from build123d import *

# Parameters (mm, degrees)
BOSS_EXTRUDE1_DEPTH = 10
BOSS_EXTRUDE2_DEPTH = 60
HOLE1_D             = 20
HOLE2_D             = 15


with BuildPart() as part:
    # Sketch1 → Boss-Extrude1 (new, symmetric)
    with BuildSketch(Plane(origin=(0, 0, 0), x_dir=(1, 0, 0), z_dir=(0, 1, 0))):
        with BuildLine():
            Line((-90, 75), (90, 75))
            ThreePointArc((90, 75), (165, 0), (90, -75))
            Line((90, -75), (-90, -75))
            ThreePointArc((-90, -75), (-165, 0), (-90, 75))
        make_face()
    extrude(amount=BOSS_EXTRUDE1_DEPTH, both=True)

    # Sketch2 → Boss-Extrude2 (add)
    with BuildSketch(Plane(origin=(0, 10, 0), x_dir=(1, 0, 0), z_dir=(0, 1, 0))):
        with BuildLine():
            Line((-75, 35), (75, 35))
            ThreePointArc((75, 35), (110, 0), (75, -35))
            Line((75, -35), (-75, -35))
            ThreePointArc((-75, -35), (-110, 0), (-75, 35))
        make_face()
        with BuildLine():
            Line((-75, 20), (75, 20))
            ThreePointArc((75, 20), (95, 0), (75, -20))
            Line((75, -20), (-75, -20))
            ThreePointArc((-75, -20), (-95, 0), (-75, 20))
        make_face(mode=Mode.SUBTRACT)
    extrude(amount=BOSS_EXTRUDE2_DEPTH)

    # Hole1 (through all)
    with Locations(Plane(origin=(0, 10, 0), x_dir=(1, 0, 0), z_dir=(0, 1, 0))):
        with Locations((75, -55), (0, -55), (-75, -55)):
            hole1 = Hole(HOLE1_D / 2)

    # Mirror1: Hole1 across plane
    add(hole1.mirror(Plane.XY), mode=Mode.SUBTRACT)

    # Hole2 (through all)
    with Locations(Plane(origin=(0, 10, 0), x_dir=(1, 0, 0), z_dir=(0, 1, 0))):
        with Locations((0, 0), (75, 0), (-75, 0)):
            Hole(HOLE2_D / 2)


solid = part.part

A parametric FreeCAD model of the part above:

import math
import FreeCAD as App
import Part
import Sketcher
Q = App.Units.Quantity

doc = App.newDocument("Part")
body = doc.addObject("PartDesign::Body", "Body")

# Sketch on XZ plane
sketch1 = body.newObject("Sketcher::SketchObject", "Sketch")
sketch1.AttachmentSupport = (doc.getObject("XZ_Plane"), [""])
sketch1.MapMode = "FlatFace"
sketch1.addGeometry([
    Part.LineSegment(App.Vector(90, -75, 0), App.Vector(-90, -75, 0)),
    Part.ArcOfCircle(Part.Circle(App.Vector(-90, 0, 0), App.Vector(0, 0, 1), 75), math.radians(90), math.radians(270)),
    Part.LineSegment(App.Vector(-90, 75, 0), App.Vector(90, 75, 0)),
    Part.ArcOfCircle(Part.Circle(App.Vector(90, 0, 0), App.Vector(0, 0, 1), 75), math.radians(-90), math.radians(90)),
], False)
sketch1.addConstraint([
    Sketcher.Constraint("Tangent", 0, 2, 1, 2),
    Sketcher.Constraint("Tangent", 1, 1, 2, 1),
    Sketcher.Constraint("Tangent", 2, 2, 3, 2),
    Sketcher.Constraint("Tangent", 3, 1, 0, 1),
    Sketcher.Constraint("Horizontal", 0),
    Sketcher.Constraint("Horizontal", 2),
    Sketcher.Constraint("Symmetric", 1, 3, 3, 3, -1, 1),
    Sketcher.Constraint("Radius", 1, Q("75 mm")),
    Sketcher.Constraint("DistanceX", 0, 2, 0, 1, Q("180 mm")),
])
pad1 = body.newObject("PartDesign::Pad", "Pad")
pad1.Profile = sketch1
pad1.Length = 20
pad1.Midplane = True

# Sketch on XZ plane
sketch2 = body.newObject("Sketcher::SketchObject", "Sketch001")
sketch2.AttachmentSupport = (doc.getObject("XZ_Plane"), [""])
sketch2.MapMode = "FlatFace"
sketch2.AttachmentOffset = App.Placement(App.Vector(0, 0, -10), App.Rotation())
sketch2.addGeometry([
    Part.LineSegment(App.Vector(75, -35, 0), App.Vector(-75, -35, 0)),  # 0
    Part.ArcOfCircle(Part.Circle(App.Vector(-75, 0, 0), App.Vector(0, 0, 1), 35), math.radians(90), math.radians(270)),  # 1
    Part.LineSegment(App.Vector(-75, 35, 0), App.Vector(75, 35, 0)),  # 2
    Part.ArcOfCircle(Part.Circle(App.Vector(75, 0, 0), App.Vector(0, 0, 1), 35), math.radians(-90), math.radians(90)),  # 3
    Part.LineSegment(App.Vector(-75, -20, 0), App.Vector(75, -20, 0)),  # 4
    Part.ArcOfCircle(Part.Circle(App.Vector(75, 0, 0), App.Vector(0, 0, 1), 20), math.radians(-90), math.radians(90)),  # 5
    Part.LineSegment(App.Vector(75, 20, 0), App.Vector(-75, 20, 0)),  # 6
    Part.ArcOfCircle(Part.Circle(App.Vector(-75, 0, 0), App.Vector(0, 0, 1), 20), math.radians(90), math.radians(270)),  # 7
], False)
sketch2.addConstraint([
    Sketcher.Constraint("Tangent", 0, 2, 1, 2),
    Sketcher.Constraint("Tangent", 1, 1, 2, 1),
    Sketcher.Constraint("Tangent", 2, 2, 3, 2),
    Sketcher.Constraint("Tangent", 3, 1, 0, 1),
    Sketcher.Constraint("Tangent", 4, 2, 5, 1),
    Sketcher.Constraint("Tangent", 5, 2, 6, 1),
    Sketcher.Constraint("Tangent", 6, 2, 7, 1),
    Sketcher.Constraint("Tangent", 7, 2, 4, 1),
    Sketcher.Constraint("Horizontal", 0),
    Sketcher.Constraint("Horizontal", 2),
    Sketcher.Constraint("Horizontal", 4),
    Sketcher.Constraint("Horizontal", 6),
    Sketcher.Constraint("Coincident", 5, 3, 3, 3),
    Sketcher.Constraint("Symmetric", 1, 3, 3, 3, -1, 1),
    Sketcher.Constraint("Vertical", 7, 3, 0, 2),
    Sketcher.Constraint("Radius", 1, Q("35 mm")),
    Sketcher.Constraint("Radius", 5, Q("20 mm")),
    Sketcher.Constraint("DistanceX", 0, 2, 0, 1, Q("150 mm")),
])
pad2 = body.newObject("PartDesign::Pad", "Pad001")
pad2.Profile = sketch2
pad2.Length = 60
pad2.Reversed = True

# Sketch on XZ plane
sketch3 = body.newObject("Sketcher::SketchObject", "Sketch002")
sketch3.AttachmentSupport = (doc.getObject("XZ_Plane"), [""])
sketch3.MapMode = "FlatFace"
sketch3.AttachmentOffset = App.Placement(App.Vector(0, 0, -10), App.Rotation())
sketch3.addGeometry([
    Part.Circle(App.Vector(75, 55, 0), App.Vector(0, 0, 1), 10),
    Part.Circle(App.Vector(0, 55, 0), App.Vector(0, 0, 1), 10),
    Part.Circle(App.Vector(-75, 55, 0), App.Vector(0, 0, 1), 10),
], False)
sketch3.addConstraint([
    Sketcher.Constraint("Equal", 0, 1),
    Sketcher.Constraint("Equal", 1, 2),
    Sketcher.Constraint("Symmetric", 0, 3, 2, 3, -2),
    Sketcher.Constraint("PointOnObject", 1, 3, -2),
    Sketcher.Constraint("Horizontal", 0, 3, 1, 3),
    Sketcher.Constraint("Diameter", 0, Q("20 mm")),
    Sketcher.Constraint("DistanceX", -1, 1, 0, 3, Q("75 mm")),
    Sketcher.Constraint("DistanceY", -1, 1, 0, 3, Q("55 mm")),
])
doc.recompute()
hole = body.newObject("PartDesign::Hole", "Hole")
hole.Profile = sketch3
hole.ThreadType = "None"
hole.Diameter = 20
hole.DepthType = "ThroughAll"
hole.Reversed = True
doc.recompute()

mirrored = body.newObject("PartDesign::Mirrored", "Mirrored")
mirrored.Originals = [hole]
mirrored.MirrorPlane = (doc.getObject("XY_Plane"), [""])
body.Tip = mirrored

# Sketch on XZ plane
sketch4 = body.newObject("Sketcher::SketchObject", "Sketch003")
sketch4.AttachmentSupport = (doc.getObject("XZ_Plane"), [""])
sketch4.MapMode = "FlatFace"
sketch4.AttachmentOffset = App.Placement(App.Vector(0, 0, -10), App.Rotation())
sketch4.addGeometry([
    Part.Circle(App.Vector(0, 0, 0), App.Vector(0, 0, 1), 8),
    Part.Circle(App.Vector(75, 0, 0), App.Vector(0, 0, 1), 8),
    Part.Circle(App.Vector(-75, 0, 0), App.Vector(0, 0, 1), 8),
], False)
sketch4.addConstraint([
    Sketcher.Constraint("Coincident", 0, 3, -1, 1),
    Sketcher.Constraint("Equal", 0, 1),
    Sketcher.Constraint("Equal", 1, 2),
    Sketcher.Constraint("Symmetric", 1, 3, 2, 3, -1, 1),
    Sketcher.Constraint("PointOnObject", 1, 3, -1),
    Sketcher.Constraint("Diameter", 0, Q("15 mm")),
    Sketcher.Constraint("DistanceX", -1, 1, 1, 3, Q("75 mm")),
])
doc.recompute()
hole2 = body.newObject("PartDesign::Hole", "Hole001")
hole2.Profile = sketch4
hole2.ThreadType = "None"
hole2.Diameter = 15
hole2.DepthType = "ThroughAll"
hole2.Reversed = True

doc.recompute()
